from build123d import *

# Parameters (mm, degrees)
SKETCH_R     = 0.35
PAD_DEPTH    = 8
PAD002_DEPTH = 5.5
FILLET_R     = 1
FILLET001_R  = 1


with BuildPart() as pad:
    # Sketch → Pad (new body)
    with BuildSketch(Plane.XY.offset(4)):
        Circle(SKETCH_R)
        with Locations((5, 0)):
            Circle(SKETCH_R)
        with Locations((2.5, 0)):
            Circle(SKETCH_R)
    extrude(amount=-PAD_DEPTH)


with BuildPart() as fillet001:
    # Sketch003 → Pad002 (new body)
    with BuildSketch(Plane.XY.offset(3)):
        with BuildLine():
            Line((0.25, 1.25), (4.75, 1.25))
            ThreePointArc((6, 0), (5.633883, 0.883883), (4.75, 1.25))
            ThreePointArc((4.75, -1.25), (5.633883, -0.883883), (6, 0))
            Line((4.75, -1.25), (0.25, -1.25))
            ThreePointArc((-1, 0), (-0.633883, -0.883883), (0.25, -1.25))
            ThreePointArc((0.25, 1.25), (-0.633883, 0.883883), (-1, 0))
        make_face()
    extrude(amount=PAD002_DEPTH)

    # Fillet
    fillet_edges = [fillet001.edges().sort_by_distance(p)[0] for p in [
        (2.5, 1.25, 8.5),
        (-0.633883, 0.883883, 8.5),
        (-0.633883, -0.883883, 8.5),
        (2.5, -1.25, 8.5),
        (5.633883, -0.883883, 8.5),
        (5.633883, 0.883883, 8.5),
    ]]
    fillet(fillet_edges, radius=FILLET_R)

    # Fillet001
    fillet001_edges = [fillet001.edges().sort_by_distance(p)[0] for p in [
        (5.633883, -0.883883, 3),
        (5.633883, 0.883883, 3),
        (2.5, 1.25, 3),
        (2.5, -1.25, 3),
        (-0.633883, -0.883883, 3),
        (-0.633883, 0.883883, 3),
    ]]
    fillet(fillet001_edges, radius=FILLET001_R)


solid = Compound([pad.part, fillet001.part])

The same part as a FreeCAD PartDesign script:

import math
import FreeCAD as App
import Part
import Sketcher
from FreeCAD import Vector


def edges_at(feature, points):
    """Names of the edges that pass closest to the given points."""
    edges = feature.Shape.Edges
    near = lambda p: min(range(len(edges)), key=lambda i: edges[i].distToShape(Part.Vertex(*p))[0])
    return sorted({f"Edge{near(p) + 1}" for p in points})

doc = App.newDocument("Part")
body = doc.addObject("PartDesign::Body", "Body")
body.AllowCompound = True

# Sketch on XY plane
sketch1 = body.newObject("Sketcher::SketchObject", "Sketch")
sketch1.AttachmentSupport = (doc.getObject("XY_Plane"), [""])
sketch1.MapMode = "FlatFace"
sketch1.AttachmentOffset = App.Placement(Vector(0, 0, 4), App.Rotation())
sketch1.addGeometry([
    Part.Circle(Vector(0, 0, 0), Vector(0, 0, 1), 0.35),
    Part.Circle(Vector(5, 0, 0), Vector(0, 0, 1), 0.35),
    Part.Circle(Vector(2.5, 0, 0), Vector(0, 0, 1), 0.35),
], False)
sketch1.addConstraint([
    Sketcher.Constraint("Coincident", 0, 3, -1, 1),
    Sketcher.Constraint("Equal", 0, 1),
    Sketcher.Constraint("Equal", 1, 2),
    Sketcher.Constraint("PointOnObject", 1, 3, -1),
    Sketcher.Constraint("PointOnObject", 2, 3, -1),
    Sketcher.Constraint("Diameter", 0, 0.7),
    Sketcher.Constraint("DistanceX", -1, 1, 1, 3, 5.0),
    Sketcher.Constraint("DistanceX", -1, 1, 2, 3, 2.5),
])
pad1 = body.newObject("PartDesign::Pad", "Pad")
pad1.Profile = sketch1
pad1.Length = 8
pad1.Reversed = True
body2 = doc.addObject("PartDesign::Body", "Body001")

# Sketch on XY plane
sketch2 = body2.newObject("Sketcher::SketchObject", "Sketch001")
sketch2.AttachmentSupport = (doc.getObject("XY_Plane001"), [""])
sketch2.MapMode = "FlatFace"
sketch2.AttachmentOffset = App.Placement(Vector(0, 0, 3), App.Rotation())
sketch2.addGeometry([
    Part.LineSegment(Vector(4.75, 1.25, 0), Vector(0.25, 1.25, 0)),  # 0
    Part.ArcOfCircle(Part.Circle(Vector(0.250002, -0.000002, 0), Vector(0, 0, 1), 1.250002), math.radians(90.000075), math.radians(179.999925)),  # 1
    Part.ArcOfCircle(Part.Circle(Vector(0.250002, 0.000002, 0), Vector(0, 0, 1), 1.250002), math.radians(-179.999925), math.radians(-90.000075)),  # 2
    Part.LineSegment(Vector(0.25, -1.25, 0), Vector(4.75, -1.25, 0)),  # 3
    Part.ArcOfCircle(Part.Circle(Vector(4.749998, 0.000002, 0), Vector(0, 0, 1), 1.250002), math.radians(-89.999925), math.radians(-0.000075)),  # 4
    Part.ArcOfCircle(Part.Circle(Vector(4.749998, -0.000002, 0), Vector(0, 0, 1), 1.250002), math.radians(0.000075), math.radians(89.999925)),  # 5
], False)
sketch2.addConstraint([
    Sketcher.Constraint("Tangent", 0, 2, 1, 1),
    Sketcher.Constraint("Coincident", 1, 2, 2, 1),
    Sketcher.Constraint("Tangent", 2, 2, 3, 1),
    Sketcher.Constraint("Tangent", 3, 2, 4, 1),
    Sketcher.Constraint("Coincident", 4, 2, 5, 1),
    Sketcher.Constraint("Tangent", 5, 2, 0, 1),
    Sketcher.Constraint("Horizontal", 0),
    Sketcher.Constraint("Horizontal", 3),
    Sketcher.Constraint("Coincident", 2, 3, 1, 3),
    Sketcher.Constraint("Coincident", 5, 3, 4, 3),
    Sketcher.Constraint("PointOnObject", 1, 3, -1),
    Sketcher.Constraint("PointOnObject", 1, 2, -1),
    Sketcher.Constraint("PointOnObject", 4, 2, -1),
    Sketcher.Constraint("Radius", 1, 1.250002),
    Sketcher.Constraint("DistanceX", 0, 2, 0, 1, 4.5),
    Sketcher.Constraint("DistanceX", 1, 2, -1, 1, 1.0),
])
pad2 = body2.newObject("PartDesign::Pad", "Pad001")
pad2.Profile = sketch2
pad2.Length = 5.5
doc.recompute()

fillet = body2.newObject("PartDesign::Fillet", "Fillet")
fillet.Base = (pad2, edges_at(pad2, [
    (2.5, 1.25, 8.5),
    (-0.634, 0.884, 8.5),
    (-0.634, -0.884, 8.5),
    (2.5, -1.25, 8.5),
    (5.634, -0.884, 8.5),
    (5.634, 0.884, 8.5),
]))
fillet.Radius = 1
doc.recompute()

fillet2 = body2.newObject("PartDesign::Fillet", "Fillet001")
fillet2.Base = (fillet, edges_at(fillet, [
    (5.634, -0.884, 3),
    (5.634, 0.884, 3),
    (2.5, 1.25, 3),
    (2.5, -1.25, 3),
    (-0.634, -0.884, 3),
    (-0.634, 0.884, 3),
]))
fillet2.Radius = 1

doc.recompute()
